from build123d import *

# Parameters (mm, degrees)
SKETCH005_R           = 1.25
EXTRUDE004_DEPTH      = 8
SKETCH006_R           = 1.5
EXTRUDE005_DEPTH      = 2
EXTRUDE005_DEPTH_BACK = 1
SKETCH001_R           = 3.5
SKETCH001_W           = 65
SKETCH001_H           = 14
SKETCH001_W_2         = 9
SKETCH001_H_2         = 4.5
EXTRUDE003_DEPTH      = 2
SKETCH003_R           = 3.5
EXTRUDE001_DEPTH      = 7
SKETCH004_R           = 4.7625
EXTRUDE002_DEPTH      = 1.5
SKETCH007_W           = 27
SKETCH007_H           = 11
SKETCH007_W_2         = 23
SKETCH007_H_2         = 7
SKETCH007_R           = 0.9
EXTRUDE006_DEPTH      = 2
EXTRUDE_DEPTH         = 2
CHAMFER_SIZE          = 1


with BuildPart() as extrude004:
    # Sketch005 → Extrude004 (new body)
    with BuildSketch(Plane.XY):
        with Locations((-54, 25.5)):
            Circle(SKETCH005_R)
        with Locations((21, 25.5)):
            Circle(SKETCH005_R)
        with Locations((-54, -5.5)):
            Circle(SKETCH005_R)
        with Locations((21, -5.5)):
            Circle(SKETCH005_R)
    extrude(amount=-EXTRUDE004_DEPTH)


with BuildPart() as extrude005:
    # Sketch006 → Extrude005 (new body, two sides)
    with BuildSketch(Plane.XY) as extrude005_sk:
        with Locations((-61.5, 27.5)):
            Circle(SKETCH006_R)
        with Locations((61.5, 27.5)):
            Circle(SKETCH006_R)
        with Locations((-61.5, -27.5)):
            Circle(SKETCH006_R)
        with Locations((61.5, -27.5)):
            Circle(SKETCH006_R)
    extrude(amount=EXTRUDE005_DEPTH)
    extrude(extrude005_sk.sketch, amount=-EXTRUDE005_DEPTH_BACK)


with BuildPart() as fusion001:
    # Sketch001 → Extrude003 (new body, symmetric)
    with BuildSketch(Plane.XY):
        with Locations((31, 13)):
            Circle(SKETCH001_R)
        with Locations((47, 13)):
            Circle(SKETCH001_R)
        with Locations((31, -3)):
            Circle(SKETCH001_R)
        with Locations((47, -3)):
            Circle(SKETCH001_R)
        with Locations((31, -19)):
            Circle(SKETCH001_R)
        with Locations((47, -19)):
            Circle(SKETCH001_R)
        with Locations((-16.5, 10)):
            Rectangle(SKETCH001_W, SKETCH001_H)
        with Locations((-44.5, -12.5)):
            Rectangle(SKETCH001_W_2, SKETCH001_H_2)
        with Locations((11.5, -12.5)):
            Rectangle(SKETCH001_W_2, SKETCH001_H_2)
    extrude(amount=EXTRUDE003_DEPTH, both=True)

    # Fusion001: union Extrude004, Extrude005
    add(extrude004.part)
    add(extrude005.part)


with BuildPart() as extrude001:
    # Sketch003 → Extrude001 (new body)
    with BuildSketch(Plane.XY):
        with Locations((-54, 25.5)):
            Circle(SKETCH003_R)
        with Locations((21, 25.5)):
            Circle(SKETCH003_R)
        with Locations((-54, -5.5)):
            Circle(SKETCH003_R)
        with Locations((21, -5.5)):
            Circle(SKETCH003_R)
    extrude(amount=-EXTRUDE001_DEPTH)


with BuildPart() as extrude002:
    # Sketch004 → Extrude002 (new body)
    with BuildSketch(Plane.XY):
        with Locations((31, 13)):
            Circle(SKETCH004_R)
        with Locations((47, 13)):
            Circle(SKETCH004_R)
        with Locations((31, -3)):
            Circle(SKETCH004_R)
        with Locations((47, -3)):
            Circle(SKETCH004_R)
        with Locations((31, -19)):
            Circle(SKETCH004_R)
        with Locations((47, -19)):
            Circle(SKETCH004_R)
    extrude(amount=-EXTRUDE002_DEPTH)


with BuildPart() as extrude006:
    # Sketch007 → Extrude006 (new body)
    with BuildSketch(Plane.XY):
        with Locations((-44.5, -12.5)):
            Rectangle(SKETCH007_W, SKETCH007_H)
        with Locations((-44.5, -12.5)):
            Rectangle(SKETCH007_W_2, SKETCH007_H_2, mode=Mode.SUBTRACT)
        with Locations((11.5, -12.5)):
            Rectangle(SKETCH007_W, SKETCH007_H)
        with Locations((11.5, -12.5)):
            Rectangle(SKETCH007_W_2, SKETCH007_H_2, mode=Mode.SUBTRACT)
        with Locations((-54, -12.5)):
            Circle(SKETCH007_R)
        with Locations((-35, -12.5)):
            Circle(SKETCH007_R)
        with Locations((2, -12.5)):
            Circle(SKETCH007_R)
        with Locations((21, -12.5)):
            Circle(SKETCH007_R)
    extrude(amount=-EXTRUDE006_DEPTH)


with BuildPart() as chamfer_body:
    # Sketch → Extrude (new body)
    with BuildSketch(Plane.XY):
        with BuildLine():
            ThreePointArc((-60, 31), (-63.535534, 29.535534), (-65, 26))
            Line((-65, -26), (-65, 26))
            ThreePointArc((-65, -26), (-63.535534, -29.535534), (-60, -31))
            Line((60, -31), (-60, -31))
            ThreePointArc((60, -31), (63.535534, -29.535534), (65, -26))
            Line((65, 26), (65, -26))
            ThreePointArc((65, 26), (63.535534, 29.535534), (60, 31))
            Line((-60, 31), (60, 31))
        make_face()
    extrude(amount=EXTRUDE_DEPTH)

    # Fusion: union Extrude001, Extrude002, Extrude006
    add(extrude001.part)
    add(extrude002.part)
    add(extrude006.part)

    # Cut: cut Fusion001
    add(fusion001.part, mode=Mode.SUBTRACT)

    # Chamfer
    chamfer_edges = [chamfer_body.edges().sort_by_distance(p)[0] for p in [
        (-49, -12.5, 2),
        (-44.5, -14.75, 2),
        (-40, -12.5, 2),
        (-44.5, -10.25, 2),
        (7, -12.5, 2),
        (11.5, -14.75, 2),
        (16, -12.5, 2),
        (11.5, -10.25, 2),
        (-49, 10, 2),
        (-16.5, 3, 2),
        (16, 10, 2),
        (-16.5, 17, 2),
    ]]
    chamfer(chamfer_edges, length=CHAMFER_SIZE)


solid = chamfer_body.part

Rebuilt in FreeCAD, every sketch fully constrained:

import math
import FreeCAD as App
import Part
import Sketcher

V = App.Vector


def edges_at(feature, points):
    """Names of the edges that pass closest to the given points."""
    edges = feature.Shape.Edges
    near = lambda p: min(range(len(edges)), key=lambda i: edges[i].distToShape(Part.Vertex(*p))[0])
    return sorted({f"Edge{near(p) + 1}" for p in points})

doc = App.newDocument("Part")
body = doc.addObject("PartDesign::Body", "Body")
body.AllowCompound = True

# Sketch on XY plane
sketch1 = body.newObject("Sketcher::SketchObject", "Sketch")
sketch1.AttachmentSupport = (doc.getObject("XY_Plane"), [""])
sketch1.MapMode = "FlatFace"
sketch1.addGeometry([
    Part.Circle(V(-54, 25.5, 0), V(0, 0, 1), 1.2),
    Part.Circle(V(21, 25.5, 0), V(0, 0, 1), 1.2),
    Part.Circle(V(-54, -5.5, 0), V(0, 0, 1), 1.2),
    Part.Circle(V(21, -5.5, 0), V(0, 0, 1), 1.2),
], False)
sketch1.addConstraint([
    Sketcher.Constraint("Equal", 0, 1),
    Sketcher.Constraint("Equal", 1, 2),
    Sketcher.Constraint("Equal", 2, 3),
    Sketcher.Constraint("Horizontal", 0, 3, 1, 3),
    Sketcher.Constraint("Horizontal", 2, 3, 3, 3),
    Sketcher.Constraint("Vertical", 0, 3, 2, 3),
    Sketcher.Constraint("Vertical", 1, 3, 3, 3),
    Sketcher.Constraint("Diameter", 0, 2.5),
    Sketcher.Constraint("DistanceX", 0, 3, -1, 1, 54.0),
    Sketcher.Constraint("DistanceX", -1, 1, 1, 3, 21.0),
    Sketcher.Constraint("DistanceY", 2, 3, 0, 3, 31.0),
    Sketcher.Constraint("DistanceY", -1, 1, 0, 3, 25.5),
])
pad1 = body.newObject("PartDesign::Pad", "Pad")
pad1.Profile = sketch1
pad1.Length = 8
pad1.Reversed = True
body2 = doc.addObject("PartDesign::Body", "Body001")
body2.AllowCompound = True

# Sketch on XY plane
sketch2 = body2.newObject("Sketcher::SketchObject", "Sketch001")
sketch2.AttachmentSupport = (doc.getObject("XY_Plane001"), [""])
sketch2.MapMode = "FlatFace"
sketch2.addGeometry([
    Part.Circle(V(-61.5, 27.5, 0), V(0, 0, 1), 1.5),
    Part.Circle(V(61.5, 27.5, 0), V(0, 0, 1), 1.5),
    Part.Circle(V(-61.5, -27.5, 0), V(0, 0, 1), 1.5),
    Part.Circle(V(61.5, -27.5, 0), V(0, 0, 1), 1.5),
], False)
sketch2.addConstraint([
    Sketcher.Constraint("Equal", 0, 1),
    Sketcher.Constraint("Equal", 1, 2),
    Sketcher.Constraint("Equal", 2, 3),
    Sketcher.Constraint("Symmetric", 1, 3, 2, 3, -1, 1),
    Sketcher.Constraint("Symmetric", 0, 3, 3, 3, -1, 1),
    Sketcher.Constraint("Symmetric", 0, 3, 1, 3, -2),
    Sketcher.Constraint("Diameter", 0, 3.0),
    Sketcher.Constraint("DistanceX", 0, 3, 1, 3, 123.0),
    Sketcher.Constraint("DistanceY", 2, 3, 0, 3, 55.0),
])
pad2 = body2.newObject("PartDesign::Pad", "Pad001")
pad2.Profile = sketch2
pad2.Type = "TwoLengths"
pad2.Length = 2
pad2.Length2 = 1
body3 = doc.addObject("PartDesign::Body", "Body002")
body3.AllowCompound = True

# Sketch on XY plane
sketch3 = body3.newObject("Sketcher::SketchObject", "Sketch002")
sketch3.AttachmentSupport = (doc.getObject("XY_Plane002"), [""])
sketch3.MapMode = "FlatFace"
sketch3.addGeometry([
    Part.Circle(V(31, 13, 0), V(0, 0, 1), 3.5),  # 0
    Part.Circle(V(47, 13, 0), V(0, 0, 1), 3.5),  # 1
    Part.Circle(V(31, -3, 0), V(0, 0, 1), 3.5),  # 2
    Part.Circle(V(47, -3, 0), V(0, 0, 1), 3.5),  # 3
    Part.Circle(V(31, -19, 0), V(0, 0, 1), 3.5),  # 4
    Part.Circle(V(47, -19, 0), V(0, 0, 1), 3.5),  # 5
    Part.LineSegment(V(-49, 17, 0), V(-49, 3, 0)),  # 6
    Part.LineSegment(V(-49, 3, 0), V(16, 3, 0)),  # 7
    Part.LineSegment(V(16, 3, 0), V(16, 17, 0)),  # 8
    Part.LineSegment(V(16, 17, 0), V(-49, 17, 0)),  # 9
    Part.LineSegment(V(-49, -10.2, 0), V(-49, -14.8, 0)),  # 10
    Part.LineSegment(V(-49, -14.8, 0), V(-40, -14.8, 0)),  # 11
    Part.LineSegment(V(-40, -14.8, 0), V(-40, -10.2, 0)),  # 12
    Part.LineSegment(V(-40, -10.2, 0), V(-49, -10.2, 0)),  # 13
    Part.LineSegment(V(7, -10.2, 0), V(7, -14.8, 0)),  # 14
    Part.LineSegment(V(7, -14.8, 0), V(16, -14.8, 0)),  # 15
    Part.LineSegment(V(16, -14.8, 0), V(16, -10.2, 0)),  # 16
    Part.LineSegment(V(16, -10.2, 0), V(7, -10.2, 0)),  # 17
], False)
sketch3.addConstraint([
    Sketcher.Constraint("Coincident", 6, 2, 7, 1),
    Sketcher.Constraint("Coincident", 7, 2, 8, 1),
    Sketcher.Constraint("Coincident", 8, 2, 9, 1),
    Sketcher.Constraint("Coincident", 9, 2, 6, 1),
    Sketcher.Constraint("Coincident", 10, 2, 11, 1),
    Sketcher.Constraint("Coincident", 11, 2, 12, 1),
    Sketcher.Constraint("Coincident", 12, 2, 13, 1),
    Sketcher.Constraint("Coincident", 13, 2, 10, 1),
    Sketcher.Constraint("Coincident", 14, 2, 15, 1),
    Sketcher.Constraint("Coincident", 15, 2, 16, 1),
    Sketcher.Constraint("Coincident", 16, 2, 17, 1),
    Sketcher.Constraint("Coincident", 17, 2, 14, 1),
    Sketcher.Constraint("Vertical", 6),
    Sketcher.Constraint("Horizontal", 7),
    Sketcher.Constraint("Vertical", 8),
    Sketcher.Constraint("Horizontal", 9),
    Sketcher.Constraint("Vertical", 10),
    Sketcher.Constraint("Horizontal", 11),
    Sketcher.Constraint("Vertical", 12),
    Sketcher.Constraint("Horizontal", 13),
    Sketcher.Constraint("Vertical", 14),
    Sketcher.Constraint("Horizontal", 15),
    Sketcher.Constraint("Vertical", 16),
    Sketcher.Constraint("Horizontal", 17),
    Sketcher.Constraint("Equal", 0, 1),
    Sketcher.Constraint("Equal", 1, 2),
    Sketcher.Constraint("Equal", 2, 3),
    Sketcher.Constraint("Equal", 3, 4),
    Sketcher.Constraint("Equal", 4, 5),
    Sketcher.Constraint("Horizontal", 0, 3, 1, 3),
    Sketcher.Constraint("Horizontal", 2, 3, 3, 3),
    Sketcher.Constraint("Horizontal", 4, 3, 5, 3),
    Sketcher.Constraint("Horizontal", 11, 2, 14, 2),
    Sketcher.Constraint("Horizontal", 13, 2, 16, 2),
    Sketcher.Constraint("Vertical", 0, 3, 2, 3),
    Sketcher.Constraint("Vertical", 1, 3, 3, 3),
    Sketcher.Constraint("Vertical", 2, 3, 4, 3),
    Sketcher.Constraint("Vertical", 3, 3, 5, 3),
    Sketcher.Constraint("Vertical", 9, 2, 10, 2),
    Sketcher.Constraint("Vertical", 8, 2, 15, 2),
    Sketcher.Constraint("Equal", 13, 15),
    Sketcher.Constraint("Diameter", 0, 7.0),
    Sketcher.Constraint("DistanceX", 7, 1, 7, 2, 65.0),
    Sketcher.Constraint("DistanceX", 11, 1, 11, 2, 9.0),
    Sketcher.Constraint("DistanceY", 6, 2, 6, 1, 14.0),
    Sketcher.Constraint("DistanceY", 10, 2, 10, 1, 4.5),
    Sketcher.Constraint("DistanceX", -1, 1, 0, 3, 31.0),
    Sketcher.Constraint("DistanceY", -1, 1, 0, 3, 13.0),
    Sketcher.Constraint("DistanceX", -1, 1, 1, 3, 47.0),
    Sketcher.Constraint("DistanceY", 2, 3, -1, 1, 3.0),
    Sketcher.Constraint("DistanceY", 4, 3, -1, 1, 19.0),
    Sketcher.Constraint("DistanceX", 6, 2, -1, 1, 49.0),
    Sketcher.Constraint("DistanceY", -1, 1, 6, 2, 3.0),
    Sketcher.Constraint("DistanceY", 10, 2, -1, 1, 14.75),
])
pad3 = body3.newObject("PartDesign::Pad", "Pad002")
pad3.Profile = sketch3
pad3.Length = 4
pad3.Midplane = True
doc.recompute()

boolean = body3.newObject("PartDesign::Boolean", "Boolean")
boolean.Type = "Fuse"
boolean.addObjects([body])
doc.recompute()

boolean2 = body3.newObject("PartDesign::Boolean", "Boolean001")
boolean2.Type = "Fuse"
boolean2.addObjects([body2])
body4 = doc.addObject("PartDesign::Body", "Body003")
body4.AllowCompound = True

# Sketch on XY plane
sketch4 = body4.newObject("Sketcher::SketchObject", "Sketch003")
sketch4.AttachmentSupport = (doc.getObject("XY_Plane003"), [""])
sketch4.MapMode = "FlatFace"
sketch4.addGeometry([
    Part.Circle(V(-54, 25.5, 0), V(0, 0, 1), 3.5),
    Part.Circle(V(21, 25.5, 0), V(0, 0, 1), 3.5),
    Part.Circle(V(-54, -5.5, 0), V(0, 0, 1), 3.5),
    Part.Circle(V(21, -5.5, 0), V(0, 0, 1), 3.5),
], False)
sketch4.addConstraint([
    Sketcher.Constraint("Equal", 0, 1),
    Sketcher.Constraint("Equal", 1, 2),
    Sketcher.Constraint("Equal", 2, 3),
    Sketcher.Constraint("Horizontal", 0, 3, 1, 3),
    Sketcher.Constraint("Horizontal", 2, 3, 3, 3),
    Sketcher.Constraint("Vertical", 0, 3, 2, 3),
    Sketcher.Constraint("Vertical", 1, 3, 3, 3),
    Sketcher.Constraint("Diameter", 0, 7.0),
    Sketcher.Constraint("DistanceX", 0, 3, -1, 1, 54.0),
    Sketcher.Constraint("DistanceX", -1, 1, 1, 3, 21.0),
    Sketcher.Constraint("DistanceY", 2, 3, 0, 3, 31.0),
    Sketcher.Constraint("DistanceY", -1, 1, 0, 3, 25.5),
])
pad4 = body4.newObject("PartDesign::Pad", "Pad003")
pad4.Profile = sketch4
pad4.Length = 7
pad4.Reversed = True
body5 = doc.addObject("PartDesign::Body", "Body004")
body5.AllowCompound = True

# Sketch on XY plane
sketch5 = body5.newObject("Sketcher::SketchObject", "Sketch004")
sketch5.AttachmentSupport = (doc.getObject("XY_Plane004"), [""])
sketch5.MapMode = "FlatFace"
sketch5.addGeometry([
    Part.Circle(V(31, 13, 0), V(0, 0, 1), 4.8),  # 0
    Part.Circle(V(47, 13, 0), V(0, 0, 1), 4.8),  # 1
    Part.Circle(V(31, -3, 0), V(0, 0, 1), 4.8),  # 2
    Part.Circle(V(47, -3, 0), V(0, 0, 1), 4.8),  # 3
    Part.Circle(V(31, -19, 0), V(0, 0, 1), 4.8),  # 4
    Part.Circle(V(47, -19, 0), V(0, 0, 1), 4.8),  # 5
], False)
sketch5.addConstraint([
    Sketcher.Constraint("Equal", 0, 1),
    Sketcher.Constraint("Equal", 1, 2),
    Sketcher.Constraint("Equal", 2, 3),
    Sketcher.Constraint("Equal", 3, 4),
    Sketcher.Constraint("Equal", 4, 5),
    Sketcher.Constraint("Horizontal", 0, 3, 1, 3),
    Sketcher.Constraint("Horizontal", 2, 3, 3, 3),
    Sketcher.Constraint("Horizontal", 4, 3, 5, 3),
    Sketcher.Constraint("Vertical", 0, 3, 2, 3),
    Sketcher.Constraint("Vertical", 1, 3, 3, 3),
    Sketcher.Constraint("Vertical", 2, 3, 4, 3),
    Sketcher.Constraint("Vertical", 3, 3, 5, 3),
    Sketcher.Constraint("Diameter", 0, 9.525),
    Sketcher.Constraint("DistanceX", -1, 1, 0, 3, 31.0),
    Sketcher.Constraint("DistanceY", -1, 1, 0, 3, 13.0),
    Sketcher.Constraint("DistanceX", -1, 1, 1, 3, 47.0),
    Sketcher.Constraint("DistanceY", 2, 3, -1, 1, 3.0),
    Sketcher.Constraint("DistanceY", 4, 3, -1, 1, 19.0),
])
pad5 = body5.newObject("PartDesign::Pad", "Pad004")
pad5.Profile = sketch5
pad5.Length = 1.5
pad5.Reversed = True
body6 = doc.addObject("PartDesign::Body", "Body005")
body6.AllowCompound = True

# Sketch on XY plane
sketch6 = body6.newObject("Sketcher::SketchObject", "Sketch005")
sketch6.AttachmentSupport = (doc.getObject("XY_Plane005"), [""])
sketch6.MapMode = "FlatFace"
sketch6.addGeometry([
    Part.LineSegment(V(-58, -7, 0), V(-58, -18, 0)),  # 0
    Part.LineSegment(V(-58, -18, 0), V(-31, -18, 0)),  # 1
    Part.LineSegment(V(-31, -18, 0), V(-31, -7, 0)),  # 2
    Part.LineSegment(V(-31, -7, 0), V(-58, -7, 0)),  # 3
    Part.LineSegment(V(-33, -16, 0), V(-56, -16, 0)),  # 4
    Part.LineSegment(V(-56, -16, 0), V(-56, -9, 0)),  # 5
    Part.LineSegment(V(-56, -9, 0), V(-33, -9, 0)),  # 6
    Part.LineSegment(V(-33, -9, 0), V(-33, -16, 0)),  # 7
    Part.LineSegment(V(-2, -7, 0), V(-2, -18, 0)),  # 8
    Part.LineSegment(V(-2, -18, 0), V(25, -18, 0)),  # 9
    Part.LineSegment(V(25, -18, 0), V(25, -7, 0)),  # 10
    Part.LineSegment(V(25, -7, 0), V(-2, -7, 0)),  # 11
    Part.LineSegment(V(23, -16, 0), V(0, -16, 0)),  # 12
    Part.LineSegment(V(0, -16, 0), V(0, -9, 0)),  # 13
    Part.LineSegment(V(0, -9, 0), V(23, -9, 0)),  # 14
    Part.LineSegment(V(23, -9, 0), V(23, -16, 0)),  # 15
    Part.Circle(V(-54, -12.5, 0), V(0, 0, 1), 0.9),  # 16
    Part.Circle(V(-35, -12.5, 0), V(0, 0, 1), 0.9),  # 17
    Part.Circle(V(2, -12.5, 0), V(0, 0, 1), 0.9),  # 18
    Part.Circle(V(21, -12.5, 0), V(0, 0, 1), 0.9),  # 19
], False)
sketch6.addConstraint([
    Sketcher.Constraint("Coincident", 0, 2, 1, 1),
    Sketcher.Constraint("Coincident", 1, 2, 2, 1),
    Sketcher.Constraint("Coincident", 2, 2, 3, 1),
    Sketcher.Constraint("Coincident", 3, 2, 0, 1),
    Sketcher.Constraint("Coincident", 4, 2, 5, 1),
    Sketcher.Constraint("Coincident", 5, 2, 6, 1),
    Sketcher.Constraint("Coincident", 6, 2, 7, 1),
    Sketcher.Constraint("Coincident", 7, 2, 4, 1),
    Sketcher.Constraint("Coincident", 8, 2, 9, 1),
    Sketcher.Constraint("Coincident", 9, 2, 10, 1),
    Sketcher.Constraint("Coincident", 10, 2, 11, 1),
    Sketcher.Constraint("Coincident", 11, 2, 8, 1),
    Sketcher.Constraint("Coincident", 12, 2, 13, 1),
    Sketcher.Constraint("Coincident", 13, 2, 14, 1),
    Sketcher.Constraint("Coincident", 14, 2, 15, 1),
    Sketcher.Constraint("Coincident", 15, 2, 12, 1),
    Sketcher.Constraint("Vertical", 0),
    Sketcher.Constraint("Horizontal", 1),
    Sketcher.Constraint("Vertical", 2),
    Sketcher.Constraint("Horizontal", 3),
    Sketcher.Constraint("Horizontal", 4),
    Sketcher.Constraint("Vertical", 5),
    Sketcher.Constraint("Horizontal", 6),
    Sketcher.Constraint("Vertical", 7),
    Sketcher.Constraint("Vertical", 8),
    Sketcher.Constraint("Horizontal", 9),
    Sketcher.Constraint("Vertical", 10),
    Sketcher.Constraint("Horizontal", 11),
    Sketcher.Constraint("Horizontal", 12),
    Sketcher.Constraint("Vertical", 13),
    Sketcher.Constraint("Horizontal", 14),
    Sketcher.Constraint("Vertical", 15),
    Sketcher.Constraint("Equal", 16, 17),
    Sketcher.Constraint("Equal", 17, 18),
    Sketcher.Constraint("Equal", 18, 19),
    Sketcher.Constraint("PointOnObject", 12, 2, -2),
    Sketcher.Constraint("Horizontal", 16, 3, 17, 3),
    Sketcher.Constraint("Horizontal", 17, 3, 18, 3),
    Sketcher.Constraint("Horizontal", 18, 3, 19, 3),
    Sketcher.Constraint("Horizontal", 1, 2, 8, 2),
    Sketcher.Constraint("Horizontal", 3, 2, 10, 2),
    Sketcher.Constraint("Horizontal", 7, 2, 12, 2),
    Sketcher.Constraint("Horizontal", 6, 2, 13, 2),
    Sketcher.Constraint("Equal", 3, 9),
    Sketcher.Constraint("Equal", 6, 12),
    Sketcher.Constraint("Diameter", 16, 1.8),
    Sketcher.Constraint("DistanceX", 1, 1, 1, 2, 27.0),
    Sketcher.Constraint("DistanceX", 4, 2, 4, 1, 23.0),
    Sketcher.Constraint("DistanceY", 0, 2, 0, 1, 11.0),
    Sketcher.Constraint("DistanceY", 5, 1, 5, 2, 7.0),
    Sketcher.Constraint("DistanceX", 16, 3, -1, 1, 54.0),
    Sketcher.Constraint("DistanceX", 17, 3, -1, 1, 35.0),
    Sketcher.Constraint("DistanceX", -1, 1, 18, 3, 2.0),
    Sketcher.Constraint("DistanceX", -1, 1, 19, 3, 21.0),
    Sketcher.Constraint("DistanceX", 0, 2, -1, 1, 58.0),
    Sketcher.Constraint("DistanceY", 0, 2, -1, 1, 18.0),
    Sketcher.Constraint("DistanceX", 4, 2, -1, 1, 56.0),
    Sketcher.Constraint("DistanceY", 4, 2, -1, 1, 16.0),
    Sketcher.Constraint("DistanceX", 8, 2, -1, 1, 2.0),
    Sketcher.Constraint("DistanceY", 16, 3, -1, 1, 12.5),
])
pad6 = body6.newObject("PartDesign::Pad", "Pad005")
pad6.Profile = sketch6
pad6.Length = 2
pad6.Reversed = True
body7 = doc.addObject("PartDesign::Body", "Body006")

# Sketch on XY plane
sketch7 = body7.newObject("Sketcher::SketchObject", "Sketch006")
sketch7.AttachmentSupport = (doc.getObject("XY_Plane006"), [""])
sketch7.MapMode = "FlatFace"
sketch7.addGeometry([
    Part.ArcOfCircle(Part.Circle(V(-60, 26, 0), V(0, 0, 1), 5), math.radians(90), math.radians(180)),  # 0
    Part.LineSegment(V(-65, 26, 0), V(-65, -26, 0)),  # 1
    Part.ArcOfCircle(Part.Circle(V(-60, -26, 0), V(0, 0, 1), 5), math.radians(180), math.radians(270)),  # 2
    Part.LineSegment(V(-60, -31, 0), V(60, -31, 0)),  # 3
    Part.ArcOfCircle(Part.Circle(V(60, -26, 0), V(0, 0, 1), 5), math.radians(-90), math.radians(0)),  # 4
    Part.LineSegment(V(65, -26, 0), V(65, 26, 0)),  # 5
    Part.ArcOfCircle(Part.Circle(V(60, 26, 0), V(0, 0, 1), 5), math.radians(0), math.radians(90)),  # 6
    Part.LineSegment(V(60, 31, 0), V(-60, 31, 0)),  # 7
], False)
sketch7.addConstraint([
    Sketcher.Constraint("Tangent", 0, 2, 1, 1),
    Sketcher.Constraint("Tangent", 1, 2, 2, 1),
    Sketcher.Constraint("Tangent", 2, 2, 3, 1),
    Sketcher.Constraint("Tangent", 3, 2, 4, 1),
    Sketcher.Constraint("Tangent", 4, 2, 5, 1),
    Sketcher.Constraint("Tangent", 5, 2, 6, 1),
    Sketcher.Constraint("Tangent", 6, 2, 7, 1),
    Sketcher.Constraint("Tangent", 7, 2, 0, 1),
    Sketcher.Constraint("Vertical", 1),
    Sketcher.Constraint("Horizontal", 3),
    Sketcher.Constraint("Vertical", 5),
    Sketcher.Constraint("Horizontal", 7),
    Sketcher.Constraint("Equal", 0, 2),
    Sketcher.Constraint("Equal", 2, 4),
    Sketcher.Constraint("Equal", 4, 6),
    Sketcher.Constraint("Symmetric", 0, 3, 4, 3, -1, 1),
    Sketcher.Constraint("Radius", 0, 5.0),
    Sketcher.Constraint("DistanceX", 3, 1, 3, 2, 120.0),
    Sketcher.Constraint("DistanceY", 1, 2, 1, 1, 52.0),
])
pad7 = body7.newObject("PartDesign::Pad", "Pad006")
pad7.Profile = sketch7
pad7.Length = 2
doc.recompute()

boolean3 = body7.newObject("PartDesign::Boolean", "Boolean002")
boolean3.Type = "Fuse"
boolean3.addObjects([body4])
doc.recompute()

boolean4 = body7.newObject("PartDesign::Boolean", "Boolean003")
boolean4.Type = "Fuse"
boolean4.addObjects([body5])
doc.recompute()

boolean5 = body7.newObject("PartDesign::Boolean", "Boolean004")
boolean5.Type = "Fuse"
boolean5.addObjects([body6])
doc.recompute()

boolean6 = body7.newObject("PartDesign::Boolean", "Boolean005")
boolean6.Type = "Cut"
boolean6.addObjects([body3])
doc.recompute()

chamfer = body7.newObject("PartDesign::Chamfer", "Chamfer")
chamfer.Base = (boolean6, edges_at(boolean6, [
    (-49, -12.5, 2),
    (-44.5, -14.75, 2),
    (-40, -12.5, 2),
    (-44.5, -10.25, 2),
    (7, -12.5, 2),
    (11.5, -14.75, 2),
    (16, -12.5, 2),
    (11.5, -10.25, 2),
    (-49, 10, 2),
    (-16.5, 3, 2),
    (16, 10, 2),
    (-16.5, 17, 2),
]))
chamfer.Size = 1

doc.recompute()
